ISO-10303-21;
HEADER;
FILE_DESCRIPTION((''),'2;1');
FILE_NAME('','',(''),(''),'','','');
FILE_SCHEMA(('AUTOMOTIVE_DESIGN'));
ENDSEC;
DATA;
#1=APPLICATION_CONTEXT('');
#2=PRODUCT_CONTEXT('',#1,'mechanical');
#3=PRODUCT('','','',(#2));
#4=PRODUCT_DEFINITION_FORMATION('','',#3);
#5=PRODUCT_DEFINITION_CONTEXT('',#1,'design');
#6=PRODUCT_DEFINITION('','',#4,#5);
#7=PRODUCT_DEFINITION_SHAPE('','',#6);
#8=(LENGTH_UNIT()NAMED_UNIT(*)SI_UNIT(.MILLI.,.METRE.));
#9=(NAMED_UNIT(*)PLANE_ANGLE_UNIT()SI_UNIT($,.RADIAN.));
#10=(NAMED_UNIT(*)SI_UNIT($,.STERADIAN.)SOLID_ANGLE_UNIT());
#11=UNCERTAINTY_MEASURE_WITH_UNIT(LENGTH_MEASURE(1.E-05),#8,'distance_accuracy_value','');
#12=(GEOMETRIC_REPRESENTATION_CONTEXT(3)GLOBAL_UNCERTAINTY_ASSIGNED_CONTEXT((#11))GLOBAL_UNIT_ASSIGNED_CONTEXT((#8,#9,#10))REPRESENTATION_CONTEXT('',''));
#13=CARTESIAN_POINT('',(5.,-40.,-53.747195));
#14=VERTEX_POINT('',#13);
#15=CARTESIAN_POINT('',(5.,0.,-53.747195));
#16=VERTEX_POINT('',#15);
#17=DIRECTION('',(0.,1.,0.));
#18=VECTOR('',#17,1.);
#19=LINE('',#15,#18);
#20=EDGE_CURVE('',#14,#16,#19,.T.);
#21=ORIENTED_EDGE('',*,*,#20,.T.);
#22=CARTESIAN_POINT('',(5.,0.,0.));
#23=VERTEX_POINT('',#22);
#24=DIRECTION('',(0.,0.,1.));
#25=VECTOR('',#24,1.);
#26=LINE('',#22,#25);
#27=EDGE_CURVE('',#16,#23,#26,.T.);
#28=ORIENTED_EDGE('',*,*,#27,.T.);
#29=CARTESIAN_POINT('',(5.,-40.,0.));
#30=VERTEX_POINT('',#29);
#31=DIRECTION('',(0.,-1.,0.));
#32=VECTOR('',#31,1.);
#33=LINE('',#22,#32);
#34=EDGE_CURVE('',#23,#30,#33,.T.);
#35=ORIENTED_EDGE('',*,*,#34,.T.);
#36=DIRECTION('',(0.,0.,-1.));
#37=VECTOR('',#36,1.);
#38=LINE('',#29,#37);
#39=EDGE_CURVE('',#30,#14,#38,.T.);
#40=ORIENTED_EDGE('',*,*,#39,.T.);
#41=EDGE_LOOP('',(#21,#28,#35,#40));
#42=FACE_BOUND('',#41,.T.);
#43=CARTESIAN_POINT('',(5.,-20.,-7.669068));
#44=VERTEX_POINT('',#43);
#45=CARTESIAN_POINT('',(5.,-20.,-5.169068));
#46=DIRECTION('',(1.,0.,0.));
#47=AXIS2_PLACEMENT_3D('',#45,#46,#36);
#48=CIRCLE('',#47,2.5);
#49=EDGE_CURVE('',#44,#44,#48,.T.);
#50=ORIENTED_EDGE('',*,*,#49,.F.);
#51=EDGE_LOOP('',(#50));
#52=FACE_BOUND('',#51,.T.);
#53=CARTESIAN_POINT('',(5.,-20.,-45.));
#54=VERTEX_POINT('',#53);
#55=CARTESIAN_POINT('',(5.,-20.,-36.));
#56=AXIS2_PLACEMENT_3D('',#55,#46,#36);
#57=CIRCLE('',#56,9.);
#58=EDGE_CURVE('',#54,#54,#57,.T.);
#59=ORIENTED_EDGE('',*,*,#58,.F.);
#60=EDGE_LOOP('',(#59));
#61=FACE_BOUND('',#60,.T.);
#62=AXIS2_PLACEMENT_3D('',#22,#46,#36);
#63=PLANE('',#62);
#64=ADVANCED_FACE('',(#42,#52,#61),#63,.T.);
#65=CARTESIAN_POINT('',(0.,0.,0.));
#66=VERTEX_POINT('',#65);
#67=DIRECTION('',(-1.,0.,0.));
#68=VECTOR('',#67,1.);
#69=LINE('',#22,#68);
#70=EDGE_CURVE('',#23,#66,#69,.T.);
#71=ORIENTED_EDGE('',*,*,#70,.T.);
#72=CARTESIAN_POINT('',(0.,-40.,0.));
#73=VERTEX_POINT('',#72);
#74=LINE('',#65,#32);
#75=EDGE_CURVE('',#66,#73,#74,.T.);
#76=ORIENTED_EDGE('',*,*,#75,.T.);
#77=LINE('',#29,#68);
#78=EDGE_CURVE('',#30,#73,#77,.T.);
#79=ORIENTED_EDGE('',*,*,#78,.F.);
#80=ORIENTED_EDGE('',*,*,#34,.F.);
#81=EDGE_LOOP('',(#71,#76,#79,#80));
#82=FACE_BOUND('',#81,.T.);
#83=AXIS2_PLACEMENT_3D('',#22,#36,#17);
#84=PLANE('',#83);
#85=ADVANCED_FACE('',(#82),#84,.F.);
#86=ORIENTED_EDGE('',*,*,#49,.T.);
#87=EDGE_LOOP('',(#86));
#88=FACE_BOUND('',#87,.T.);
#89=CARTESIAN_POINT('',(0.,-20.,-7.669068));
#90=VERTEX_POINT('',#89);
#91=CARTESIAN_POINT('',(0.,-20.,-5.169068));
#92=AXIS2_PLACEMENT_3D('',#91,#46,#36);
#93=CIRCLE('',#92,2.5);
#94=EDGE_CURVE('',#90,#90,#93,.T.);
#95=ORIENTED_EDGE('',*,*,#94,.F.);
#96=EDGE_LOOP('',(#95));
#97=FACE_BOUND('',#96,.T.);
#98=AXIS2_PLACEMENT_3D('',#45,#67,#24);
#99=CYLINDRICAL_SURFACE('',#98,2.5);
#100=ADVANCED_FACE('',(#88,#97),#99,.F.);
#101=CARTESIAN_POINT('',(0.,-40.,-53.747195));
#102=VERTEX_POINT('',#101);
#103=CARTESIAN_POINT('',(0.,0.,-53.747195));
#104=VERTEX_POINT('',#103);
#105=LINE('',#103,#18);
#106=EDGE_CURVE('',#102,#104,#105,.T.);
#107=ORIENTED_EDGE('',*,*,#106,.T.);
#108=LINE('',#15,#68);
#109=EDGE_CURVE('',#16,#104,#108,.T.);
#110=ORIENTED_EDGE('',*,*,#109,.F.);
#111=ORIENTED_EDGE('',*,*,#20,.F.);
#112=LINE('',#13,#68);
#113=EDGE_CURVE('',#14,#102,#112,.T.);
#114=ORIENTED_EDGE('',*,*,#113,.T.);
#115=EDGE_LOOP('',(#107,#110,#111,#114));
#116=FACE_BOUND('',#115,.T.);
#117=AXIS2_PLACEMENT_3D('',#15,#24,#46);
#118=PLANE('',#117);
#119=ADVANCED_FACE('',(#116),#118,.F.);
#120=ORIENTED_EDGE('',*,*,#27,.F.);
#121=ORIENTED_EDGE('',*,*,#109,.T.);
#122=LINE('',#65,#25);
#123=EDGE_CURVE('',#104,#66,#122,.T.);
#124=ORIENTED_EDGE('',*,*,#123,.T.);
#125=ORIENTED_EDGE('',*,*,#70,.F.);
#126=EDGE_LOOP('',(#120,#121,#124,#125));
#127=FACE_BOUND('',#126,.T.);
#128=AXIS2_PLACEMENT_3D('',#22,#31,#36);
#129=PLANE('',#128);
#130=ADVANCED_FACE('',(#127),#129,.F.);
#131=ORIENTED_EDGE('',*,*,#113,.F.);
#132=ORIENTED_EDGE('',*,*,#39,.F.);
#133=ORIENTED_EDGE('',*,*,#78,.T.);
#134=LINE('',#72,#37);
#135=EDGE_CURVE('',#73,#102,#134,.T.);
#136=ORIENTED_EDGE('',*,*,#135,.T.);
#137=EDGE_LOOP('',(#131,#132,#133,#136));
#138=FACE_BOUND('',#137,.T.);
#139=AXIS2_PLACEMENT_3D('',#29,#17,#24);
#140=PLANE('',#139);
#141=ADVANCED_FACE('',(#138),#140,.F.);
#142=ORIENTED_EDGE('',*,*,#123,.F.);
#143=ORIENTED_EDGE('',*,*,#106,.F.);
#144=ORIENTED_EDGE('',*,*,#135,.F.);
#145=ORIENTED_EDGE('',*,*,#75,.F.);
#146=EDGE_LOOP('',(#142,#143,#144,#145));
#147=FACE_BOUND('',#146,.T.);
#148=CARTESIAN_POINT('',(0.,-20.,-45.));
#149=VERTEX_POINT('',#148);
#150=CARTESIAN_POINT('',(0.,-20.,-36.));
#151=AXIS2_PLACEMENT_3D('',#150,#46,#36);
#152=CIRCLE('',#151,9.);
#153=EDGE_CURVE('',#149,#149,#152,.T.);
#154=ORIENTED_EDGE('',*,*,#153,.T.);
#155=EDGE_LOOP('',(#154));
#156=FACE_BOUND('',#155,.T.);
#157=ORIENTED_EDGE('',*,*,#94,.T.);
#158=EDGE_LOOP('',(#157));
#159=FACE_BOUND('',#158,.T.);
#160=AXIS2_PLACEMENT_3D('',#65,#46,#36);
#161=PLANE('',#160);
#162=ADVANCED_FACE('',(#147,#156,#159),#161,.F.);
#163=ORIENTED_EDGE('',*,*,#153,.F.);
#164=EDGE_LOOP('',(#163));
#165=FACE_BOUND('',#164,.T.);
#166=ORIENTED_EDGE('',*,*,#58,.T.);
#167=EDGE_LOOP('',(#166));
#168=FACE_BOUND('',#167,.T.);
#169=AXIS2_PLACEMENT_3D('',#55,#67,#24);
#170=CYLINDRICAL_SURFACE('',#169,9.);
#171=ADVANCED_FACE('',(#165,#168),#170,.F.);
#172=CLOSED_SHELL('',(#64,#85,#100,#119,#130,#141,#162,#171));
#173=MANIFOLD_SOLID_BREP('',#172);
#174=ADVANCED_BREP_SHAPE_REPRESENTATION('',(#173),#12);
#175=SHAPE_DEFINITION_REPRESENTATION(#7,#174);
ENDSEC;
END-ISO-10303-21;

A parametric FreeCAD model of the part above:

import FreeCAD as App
import Part
import Sketcher

V = App.Vector

doc = App.newDocument("Part")
body = doc.addObject("PartDesign::Body", "Body")

# Sketch on YZ plane
sketch1 = doc.addObject("Sketcher::SketchObject", "Sketch")
body.addObject(sketch1)
sketch1.AttachmentSupport = (doc.YZ_Plane, [""])
sketch1.MapMode = "FlatFace"
sketch1.addGeometry([
    Part.LineSegment(V(0, 0, 0), V(-40, 0, 0)),  # 0
    Part.LineSegment(V(-40, 0, 0), V(-40, -53.7, 0)),  # 1
    Part.LineSegment(V(-40, -53.7, 0), V(0, -53.7, 0)),  # 2
    Part.LineSegment(V(0, -53.7, 0), V(0, 0, 0)),  # 3
    Part.Circle(V(-20, -5.2, 0), V(0, 0, 1), 2.5),  # 4
    Part.Circle(V(-20, -36, 0), V(0, 0, 1), 9),  # 5
], False)
sketch1.addConstraint([
    Sketcher.Constraint("Coincident", 0, 2, 1, 1),
    Sketcher.Constraint("Coincident", 1, 2, 2, 1),
    Sketcher.Constraint("Coincident", 2, 2, 3, 1),
    Sketcher.Constraint("Coincident", 3, 2, 0, 1),
    Sketcher.Constraint("Horizontal", 0),
    Sketcher.Constraint("Vertical", 1),
    Sketcher.Constraint("Horizontal", 2),
    Sketcher.Constraint("Vertical", 3),
    Sketcher.Constraint("Coincident", 3, 2, -1, 1),
    Sketcher.Constraint("Vertical", 4, 3, 5, 3),
    Sketcher.Constraint("Diameter", 4, 5.0),
    Sketcher.Constraint("Diameter", 5, 18.0),
    Sketcher.Constraint("DistanceX", 0, 2, 0, 1, 40.0),
    Sketcher.Constraint("DistanceX", 4, 3, -1, 1, 20.0),
    Sketcher.Constraint("DistanceY", 5, 3, -1, 1, 36.0),
    Sketcher.Constraint("DistanceY", 1, 2, 1, 1, 53.747195),
    Sketcher.Constraint("DistanceY", 4, 3, -1, 1, 5.169068),
])
pad1 = doc.addObject("PartDesign::Pad", "Pad")
body.addObject(pad1)
pad1.Profile = sketch1
pad1.Length = 5

doc.recompute()
